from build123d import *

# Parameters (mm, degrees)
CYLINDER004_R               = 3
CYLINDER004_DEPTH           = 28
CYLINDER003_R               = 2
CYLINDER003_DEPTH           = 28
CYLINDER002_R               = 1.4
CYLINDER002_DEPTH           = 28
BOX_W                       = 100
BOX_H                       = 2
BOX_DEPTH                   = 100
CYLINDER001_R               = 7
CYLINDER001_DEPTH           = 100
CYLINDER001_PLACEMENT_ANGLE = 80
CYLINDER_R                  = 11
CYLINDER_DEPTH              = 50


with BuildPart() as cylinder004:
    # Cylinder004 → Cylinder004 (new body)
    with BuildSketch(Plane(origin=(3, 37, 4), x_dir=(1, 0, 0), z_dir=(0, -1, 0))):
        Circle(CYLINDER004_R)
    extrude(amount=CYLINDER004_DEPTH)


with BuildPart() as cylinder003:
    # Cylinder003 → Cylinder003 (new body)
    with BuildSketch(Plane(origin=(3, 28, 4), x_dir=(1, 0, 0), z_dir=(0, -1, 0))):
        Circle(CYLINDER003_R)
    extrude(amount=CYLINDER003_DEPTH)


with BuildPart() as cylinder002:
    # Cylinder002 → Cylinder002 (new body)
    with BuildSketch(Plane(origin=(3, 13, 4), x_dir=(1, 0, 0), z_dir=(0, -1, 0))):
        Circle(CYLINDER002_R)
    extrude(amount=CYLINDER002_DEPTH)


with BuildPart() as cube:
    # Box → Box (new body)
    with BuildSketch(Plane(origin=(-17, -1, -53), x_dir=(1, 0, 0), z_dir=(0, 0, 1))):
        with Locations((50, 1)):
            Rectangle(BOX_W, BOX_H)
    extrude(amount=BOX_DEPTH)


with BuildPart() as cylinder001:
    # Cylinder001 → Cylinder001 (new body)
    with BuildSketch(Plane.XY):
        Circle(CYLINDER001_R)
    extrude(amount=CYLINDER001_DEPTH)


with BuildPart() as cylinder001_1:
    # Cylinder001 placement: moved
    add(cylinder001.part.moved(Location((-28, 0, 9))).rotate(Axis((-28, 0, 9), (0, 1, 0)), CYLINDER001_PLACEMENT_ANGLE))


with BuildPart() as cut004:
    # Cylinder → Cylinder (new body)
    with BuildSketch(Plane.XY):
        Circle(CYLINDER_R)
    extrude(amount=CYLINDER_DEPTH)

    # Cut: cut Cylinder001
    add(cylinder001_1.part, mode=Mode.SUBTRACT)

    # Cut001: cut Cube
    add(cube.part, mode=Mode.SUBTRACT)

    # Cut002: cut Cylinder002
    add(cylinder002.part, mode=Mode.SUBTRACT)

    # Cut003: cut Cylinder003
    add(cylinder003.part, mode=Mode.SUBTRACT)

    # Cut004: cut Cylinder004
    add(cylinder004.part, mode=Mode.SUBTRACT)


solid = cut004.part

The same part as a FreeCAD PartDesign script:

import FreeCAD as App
import Part
import Sketcher
Q = App.Units.Quantity


def add_polygon(sketch, points):
    """Adds a closed chain of lines whose ends are joined by coincident constraints."""
    first, n = sketch.GeometryCount, len(points)
    for a, b in zip(points, points[1:] + points[:1]):
        sketch.addGeometry(Part.LineSegment(App.Vector(*a, 0), App.Vector(*b, 0)), False)
    for i in range(n):
        sketch.addConstraint(Sketcher.Constraint("Coincident", first + i, 2, first + (i + 1) % n, 1))

doc = App.newDocument("Part")
params = doc.addObject("Spreadsheet::Sheet", "Params")
for row, (alias, value) in enumerate([
    ("sketch1_diameter", "6 mm"),
    ("pad1_length", "28 mm"),
    ("sketch2_diameter", "4 mm"),
    ("pad2_length", "28 mm"),
    ("sketch3_diameter", "2.8 mm"),
    ("pad3_length", "28 mm"),
    ("sketch4_width", "100 mm"),
    ("sketch4_height", "2 mm"),
    ("pad4_length", "100 mm"),
    ("sketch5_diameter", "14 mm"),
    ("pad5_length", "100 mm"),
    ("sketch6_diameter", "22 mm"),
    ("pad6_length", "50 mm"),
], start=1):
    params.set(f"A{row}", alias)
    params.set(f"B{row}", "=" + value)
    params.setAlias(f"B{row}", alias)

body = doc.addObject("PartDesign::Body", "Body")

sketch1 = body.newObject("Sketcher::SketchObject", "Sketch")
sketch1.AttachmentSupport = (doc.getObject("XZ_Plane"), [""])
sketch1.MapMode = "FlatFace"
sketch1.AttachmentOffset = App.Placement(App.Vector(0, 0, -37), App.Rotation())
sketch1.addGeometry(Part.Circle(App.Vector(3, 4, 0), App.Vector(0, 0, 1), 3), False)
sketch1.addConstraint(Sketcher.Constraint("Diameter", 0, Q("6 mm")))
sketch1.addConstraint(Sketcher.Constraint("DistanceX", -1, 1, 0, 3, Q("3 mm")))
sketch1.addConstraint(Sketcher.Constraint("DistanceY", -1, 1, 0, 3, Q("4 mm")))
sketch1.setExpression("Constraints[0]", "Params.sketch1_diameter")
pad1 = body.newObject("PartDesign::Pad", "Pad")
pad1.Profile = sketch1
pad1.setExpression("Length", "Params.pad1_length")
body2 = doc.addObject("PartDesign::Body", "Body001")

sketch2 = body2.newObject("Sketcher::SketchObject", "Sketch001")
sketch2.AttachmentSupport = (doc.getObject("XZ_Plane001"), [""])
sketch2.MapMode = "FlatFace"
sketch2.AttachmentOffset = App.Placement(App.Vector(0, 0, -28), App.Rotation())
sketch2.addGeometry(Part.Circle(App.Vector(3, 4, 0), App.Vector(0, 0, 1), 2), False)
sketch2.addConstraint(Sketcher.Constraint("Diameter", 0, Q("4 mm")))
sketch2.addConstraint(Sketcher.Constraint("DistanceX", -1, 1, 0, 3, Q("3 mm")))
sketch2.addConstraint(Sketcher.Constraint("DistanceY", -1, 1, 0, 3, Q("4 mm")))
sketch2.setExpression("Constraints[0]", "Params.sketch2_diameter")
pad2 = body2.newObject("PartDesign::Pad", "Pad001")
pad2.Profile = sketch2
pad2.setExpression("Length", "Params.pad2_length")
body3 = doc.addObject("PartDesign::Body", "Body002")

sketch3 = body3.newObject("Sketcher::SketchObject", "Sketch002")
sketch3.AttachmentSupport = (doc.getObject("XZ_Plane002"), [""])
sketch3.MapMode = "FlatFace"
sketch3.AttachmentOffset = App.Placement(App.Vector(0, 0, -13), App.Rotation())
sketch3.addGeometry(Part.Circle(App.Vector(3, 4, 0), App.Vector(0, 0, 1), 1.4), False)
sketch3.addConstraint(Sketcher.Constraint("Diameter", 0, Q("2.8 mm")))
sketch3.addConstraint(Sketcher.Constraint("DistanceX", -1, 1, 0, 3, Q("3 mm")))
sketch3.addConstraint(Sketcher.Constraint("DistanceY", -1, 1, 0, 3, Q("4 mm")))
sketch3.setExpression("Constraints[0]", "Params.sketch3_diameter")
pad3 = body3.newObject("PartDesign::Pad", "Pad002")
pad3.Profile = sketch3
pad3.setExpression("Length", "Params.pad3_length")
body4 = doc.addObject("PartDesign::Body", "Body003")

sketch4 = body4.newObject("Sketcher::SketchObject", "Sketch003")
sketch4.AttachmentSupport = (doc.getObject("XY_Plane003"), [""])
sketch4.MapMode = "FlatFace"
sketch4.AttachmentOffset = App.Placement(App.Vector(0, 0, -53), App.Rotation())
add_polygon(sketch4, [(-17, 1), (-17, -1), (83, -1), (83, 1)])
sketch4.addConstraint(Sketcher.Constraint("Vertical", 0))
sketch4.addConstraint(Sketcher.Constraint("Horizontal", 1))
sketch4.addConstraint(Sketcher.Constraint("Vertical", 2))
sketch4.addConstraint(Sketcher.Constraint("Horizontal", 3))
sketch4.addConstraint(Sketcher.Constraint("DistanceX", 1, 1, 1, 2, Q("100 mm")))
sketch4.addConstraint(Sketcher.Constraint("DistanceY", 0, 2, 0, 1, Q("2 mm")))
sketch4.addConstraint(Sketcher.Constraint("DistanceX", 0, 2, -1, 1, Q("17 mm")))
sketch4.addConstraint(Sketcher.Constraint("DistanceY", 0, 2, -1, 1, Q("1 mm")))
sketch4.setExpression("Constraints[8]", "Params.sketch4_width")
sketch4.setExpression("Constraints[9]", "Params.sketch4_height")
pad4 = body4.newObject("PartDesign::Pad", "Pad003")
pad4.Profile = sketch4
pad4.setExpression("Length", "Params.pad4_length")
body5 = doc.addObject("PartDesign::Body", "Body004")

sketch5 = body5.newObject("Sketcher::SketchObject", "Sketch004")
sketch5.AttachmentSupport = (doc.getObject("XY_Plane004"), [""])
sketch5.MapMode = "FlatFace"
sketch5.addGeometry(Part.Circle(App.Vector(0, 0, 0), App.Vector(0, 0, 1), 7), False)
sketch5.addConstraint(Sketcher.Constraint("Coincident", 0, 3, -1, 1))
sketch5.addConstraint(Sketcher.Constraint("Diameter", 0, Q("14 mm")))
sketch5.setExpression("Constraints[1]", "Params.sketch5_diameter")
pad5 = body5.newObject("PartDesign::Pad", "Pad004")
pad5.Profile = sketch5
pad5.setExpression("Length", "Params.pad5_length")
body6 = doc.addObject("PartDesign::Body", "Body005")
doc.recompute()

body5.Placement = App.Placement(App.Vector(-28, 0, 9), App.Rotation(App.Vector(0, 1, 0), 80))
boolean = body6.newObject("PartDesign::Boolean", "Boolean")
boolean.Type = "Fuse"
boolean.addObjects([body5])
body7 = doc.addObject("PartDesign::Body", "Body006")

sketch6 = body7.newObject("Sketcher::SketchObject", "Sketch005")
sketch6.AttachmentSupport = (doc.getObject("XY_Plane006"), [""])
sketch6.MapMode = "FlatFace"
sketch6.addGeometry(Part.Circle(App.Vector(0, 0, 0), App.Vector(0, 0, 1), 11), False)
sketch6.addConstraint(Sketcher.Constraint("Coincident", 0, 3, -1, 1))
sketch6.addConstraint(Sketcher.Constraint("Diameter", 0, Q("22 mm")))
sketch6.setExpression("Constraints[1]", "Params.sketch6_diameter")
pad6 = body7.newObject("PartDesign::Pad", "Pad005")
pad6.Profile = sketch6
pad6.setExpression("Length", "Params.pad6_length")
doc.recompute()

boolean2 = body7.newObject("PartDesign::Boolean", "Boolean001")
boolean2.Type = "Cut"
boolean2.addObjects([body6])
doc.recompute()

boolean3 = body7.newObject("PartDesign::Boolean", "Boolean002")
boolean3.Type = "Cut"
boolean3.addObjects([body4])
doc.recompute()

boolean4 = body7.newObject("PartDesign::Boolean", "Boolean003")
boolean4.Type = "Cut"
boolean4.addObjects([body3])
doc.recompute()

boolean5 = body7.newObject("PartDesign::Boolean", "Boolean004")
boolean5.Type = "Cut"
boolean5.addObjects([body2])
doc.recompute()

boolean6 = body7.newObject("PartDesign::Boolean", "Boolean005")
boolean6.Type = "Cut"
boolean6.addObjects([body])

doc.recompute()
